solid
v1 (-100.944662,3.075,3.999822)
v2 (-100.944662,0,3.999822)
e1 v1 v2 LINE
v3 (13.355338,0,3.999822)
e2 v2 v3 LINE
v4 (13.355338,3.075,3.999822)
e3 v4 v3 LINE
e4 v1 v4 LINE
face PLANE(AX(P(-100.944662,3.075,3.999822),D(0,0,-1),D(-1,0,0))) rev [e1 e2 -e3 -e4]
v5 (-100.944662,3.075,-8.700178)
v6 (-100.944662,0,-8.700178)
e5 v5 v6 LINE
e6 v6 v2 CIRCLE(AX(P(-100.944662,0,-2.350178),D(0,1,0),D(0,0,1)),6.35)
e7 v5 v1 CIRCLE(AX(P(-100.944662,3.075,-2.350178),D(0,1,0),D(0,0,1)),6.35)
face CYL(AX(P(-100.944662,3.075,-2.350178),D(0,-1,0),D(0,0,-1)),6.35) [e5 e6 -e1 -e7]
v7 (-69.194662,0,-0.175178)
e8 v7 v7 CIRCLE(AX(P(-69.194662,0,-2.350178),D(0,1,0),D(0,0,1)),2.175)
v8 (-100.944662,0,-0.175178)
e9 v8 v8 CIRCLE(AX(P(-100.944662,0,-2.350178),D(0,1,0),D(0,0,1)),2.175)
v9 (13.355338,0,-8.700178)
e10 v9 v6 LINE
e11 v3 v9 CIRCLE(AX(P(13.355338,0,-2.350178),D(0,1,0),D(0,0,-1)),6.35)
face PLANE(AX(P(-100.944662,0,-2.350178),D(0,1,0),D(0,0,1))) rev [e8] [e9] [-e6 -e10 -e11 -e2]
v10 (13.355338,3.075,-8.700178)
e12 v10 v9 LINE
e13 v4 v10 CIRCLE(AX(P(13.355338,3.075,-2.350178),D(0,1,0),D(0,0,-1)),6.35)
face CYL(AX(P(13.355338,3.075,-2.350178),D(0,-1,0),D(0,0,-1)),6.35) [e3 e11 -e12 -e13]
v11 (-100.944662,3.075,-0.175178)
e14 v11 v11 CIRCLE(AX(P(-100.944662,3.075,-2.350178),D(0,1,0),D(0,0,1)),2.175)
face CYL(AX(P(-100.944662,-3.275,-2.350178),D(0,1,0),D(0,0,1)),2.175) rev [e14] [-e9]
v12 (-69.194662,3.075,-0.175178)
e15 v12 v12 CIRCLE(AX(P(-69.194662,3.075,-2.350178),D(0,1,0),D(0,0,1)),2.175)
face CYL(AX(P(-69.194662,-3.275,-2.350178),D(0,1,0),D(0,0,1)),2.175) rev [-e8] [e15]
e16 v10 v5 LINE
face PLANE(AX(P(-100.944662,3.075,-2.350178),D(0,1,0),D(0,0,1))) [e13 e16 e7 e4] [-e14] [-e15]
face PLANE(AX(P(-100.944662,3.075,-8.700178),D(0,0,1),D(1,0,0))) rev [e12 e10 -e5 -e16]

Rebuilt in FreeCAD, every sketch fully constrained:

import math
import FreeCAD as App
import Part
import Sketcher

V = App.Vector
Q = App.Units.Quantity

doc = App.newDocument("Part")
body = doc.addObject("PartDesign::Body", "Body")

# Sketch on XZ plane
sketch1 = body.newObject("Sketcher::SketchObject", "Sketch")
sketch1.AttachmentSupport = (doc.getObject("XZ_Plane"), [""])
sketch1.MapMode = "FlatFace"
sketch1.addGeometry([
    Part.LineSegment(V(13, -9, 0), V(-101, -9, 0)),
    Part.ArcOfCircle(Part.Circle(V(-101, -2, 0), V(0, 0, 1), 6), math.radians(90), math.radians(270)),
    Part.LineSegment(V(-101, 4, 0), V(13, 4, 0)),
    Part.ArcOfCircle(Part.Circle(V(13, -2, 0), V(0, 0, 1), 6), math.radians(-90), math.radians(90)),
], False)
sketch1.addConstraint([
    Sketcher.Constraint("Tangent", 0, 2, 1, 2),
    Sketcher.Constraint("Tangent", 1, 1, 2, 1),
    Sketcher.Constraint("Tangent", 2, 2, 3, 2),
    Sketcher.Constraint("Tangent", 3, 1, 0, 1),
    Sketcher.Constraint("Horizontal", 0),
    Sketcher.Constraint("Horizontal", 2),
    Sketcher.Constraint("Radius", 1, Q("0.25 in")),
    Sketcher.Constraint("DistanceX", 0, 2, 0, 1, Q("4.5 in")),
    Sketcher.Constraint("DistanceX", 1, 3, -1, 1, Q("100.944662 mm")),
    Sketcher.Constraint("DistanceY", 1, 3, -1, 1, Q("2.350178 mm")),
])
pad1 = body.newObject("PartDesign::Pad", "Pad")
pad1.Profile = sketch1
pad1.Length = 3.075
pad1.Reversed = True

# Sketch on XZ plane
sketch2 = body.newObject("Sketcher::SketchObject", "Sketch001")
sketch2.AttachmentSupport = (doc.getObject("XZ_Plane"), [""])
sketch2.MapMode = "FlatFace"
sketch2.AttachmentOffset = App.Placement(V(0, 0, -3.075), App.Rotation())
sketch2.addGeometry([
    Part.Circle(V(-100.9, -2.4, 0), V(0, 0, 1), 2.2),
    Part.Circle(V(-69.2, -2.4, 0), V(0, 0, 1), 2.2),
], False)
sketch2.addConstraint([
    Sketcher.Constraint("Equal", 0, 1),
    Sketcher.Constraint("Horizontal", 0, 3, 1, 3),
    Sketcher.Constraint("Diameter", 0, Q("4.35 mm")),
    Sketcher.Constraint("DistanceX", 0, 3, 1, 3, Q("1.25 in")),
    Sketcher.Constraint("DistanceX", 0, 3, -1, 1, Q("100.944662 mm")),
    Sketcher.Constraint("DistanceY", 0, 3, -1, 1, Q("2.350178 mm")),
])
pocket1 = body.newObject("PartDesign::Pocket", "Pocket")
pocket1.Profile = sketch2
pocket1.Length = Q("0.25 in")
pocket1.Reversed = True

doc.recompute()
